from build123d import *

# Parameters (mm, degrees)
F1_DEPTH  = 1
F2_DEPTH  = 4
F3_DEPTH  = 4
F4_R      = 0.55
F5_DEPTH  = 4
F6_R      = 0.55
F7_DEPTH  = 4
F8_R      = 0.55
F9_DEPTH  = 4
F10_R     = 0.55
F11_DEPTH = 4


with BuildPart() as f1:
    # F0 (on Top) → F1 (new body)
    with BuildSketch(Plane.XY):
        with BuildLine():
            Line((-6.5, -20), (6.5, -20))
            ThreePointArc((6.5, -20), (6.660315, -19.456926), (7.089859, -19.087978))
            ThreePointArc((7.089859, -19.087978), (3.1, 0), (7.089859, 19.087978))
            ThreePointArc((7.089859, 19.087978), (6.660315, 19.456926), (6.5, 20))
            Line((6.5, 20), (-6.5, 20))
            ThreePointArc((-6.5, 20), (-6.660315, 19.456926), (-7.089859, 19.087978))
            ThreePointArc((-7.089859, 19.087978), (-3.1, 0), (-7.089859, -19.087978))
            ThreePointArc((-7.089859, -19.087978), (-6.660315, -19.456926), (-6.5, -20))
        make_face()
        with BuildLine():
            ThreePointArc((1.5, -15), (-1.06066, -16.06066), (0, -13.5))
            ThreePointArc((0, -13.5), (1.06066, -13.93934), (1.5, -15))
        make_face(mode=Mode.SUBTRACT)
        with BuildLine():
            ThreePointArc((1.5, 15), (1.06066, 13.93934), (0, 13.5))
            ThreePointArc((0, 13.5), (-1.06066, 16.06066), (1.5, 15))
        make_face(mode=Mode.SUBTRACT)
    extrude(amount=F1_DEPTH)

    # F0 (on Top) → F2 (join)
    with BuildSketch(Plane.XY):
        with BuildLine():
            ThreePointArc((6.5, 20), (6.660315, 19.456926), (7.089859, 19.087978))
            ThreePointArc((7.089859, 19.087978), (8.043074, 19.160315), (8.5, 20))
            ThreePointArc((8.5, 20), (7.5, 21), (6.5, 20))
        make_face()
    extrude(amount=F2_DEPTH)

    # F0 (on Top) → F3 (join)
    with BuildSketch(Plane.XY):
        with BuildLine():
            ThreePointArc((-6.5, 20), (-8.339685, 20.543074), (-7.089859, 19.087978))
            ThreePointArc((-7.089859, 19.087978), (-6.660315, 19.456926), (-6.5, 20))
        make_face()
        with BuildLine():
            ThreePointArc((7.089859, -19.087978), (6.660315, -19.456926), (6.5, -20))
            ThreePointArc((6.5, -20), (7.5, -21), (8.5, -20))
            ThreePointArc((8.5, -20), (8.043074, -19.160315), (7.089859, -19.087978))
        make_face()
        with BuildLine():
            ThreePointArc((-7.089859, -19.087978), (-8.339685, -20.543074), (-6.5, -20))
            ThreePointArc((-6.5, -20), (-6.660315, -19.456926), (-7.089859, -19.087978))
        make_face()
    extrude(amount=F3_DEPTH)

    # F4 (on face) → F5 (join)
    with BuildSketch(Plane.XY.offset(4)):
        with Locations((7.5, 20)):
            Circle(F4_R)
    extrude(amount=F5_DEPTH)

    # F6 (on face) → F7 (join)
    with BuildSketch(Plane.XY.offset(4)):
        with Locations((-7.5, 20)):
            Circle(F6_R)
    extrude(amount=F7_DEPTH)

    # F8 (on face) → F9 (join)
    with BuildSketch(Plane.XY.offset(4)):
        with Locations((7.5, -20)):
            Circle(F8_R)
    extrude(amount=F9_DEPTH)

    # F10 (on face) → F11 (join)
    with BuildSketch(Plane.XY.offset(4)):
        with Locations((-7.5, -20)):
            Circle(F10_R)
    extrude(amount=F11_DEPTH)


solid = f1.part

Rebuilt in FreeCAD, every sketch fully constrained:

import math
import FreeCAD as App
import Part
import Sketcher
from FreeCAD import Vector

doc = App.newDocument("Part")
body = doc.addObject("PartDesign::Body", "Body")

sketch1 = body.newObject("Sketcher::SketchObject", "Sketch")
sketch1.AttachmentSupport = (doc.getObject("XY_Plane"), [""])
sketch1.MapMode = "FlatFace"
sketch1.addGeometry([
    Part.LineSegment(Vector(-6.5, -20, 0), Vector(6.5, -20, 0)),
    Part.ArcOfCircle(Part.Circle(Vector(7.499999, -19.999999, 0), Vector(0, 0, 1), 0.999999), math.radians(114.213653), math.radians(180.000032)),
    Part.ArcOfCircle(Part.Circle(Vector(50.754551, 0, 0), Vector(0, 0, 1), 47.654551), math.radians(156.387503), math.radians(203.612497)),
    Part.ArcOfCircle(Part.Circle(Vector(7.499999, 19.999999, 0), Vector(0, 0, 1), 0.999999), math.radians(179.999968), math.radians(245.786347)),
    Part.LineSegment(Vector(6.5, 20, 0), Vector(-6.5, 20, 0)),
    Part.ArcOfCircle(Part.Circle(Vector(-7.499999, 19.999999, 0), Vector(0, 0, 1), 0.999999), math.radians(-65.786347), math.radians(0.000032)),
    Part.ArcOfCircle(Part.Circle(Vector(-50.754551, 0, 0), Vector(0, 0, 1), 47.654551), math.radians(-23.612497), math.radians(23.612497)),
    Part.ArcOfCircle(Part.Circle(Vector(-7.499999, -19.999999, 0), Vector(0, 0, 1), 0.999999), math.radians(-0.000032), math.radians(65.786347)),
    Part.ArcOfCircle(Part.Circle(Vector(-0.000001, -15.000001, 0), Vector(0, 0, 1), 1.500001), math.radians(0.000022), math.radians(89.999978)),
    Part.ArcOfCircle(Part.Circle(Vector(0, -15, 0), Vector(0, 0, 1), 1.5), math.radians(90.000004), math.radians(359.999996)),
    Part.ArcOfCircle(Part.Circle(Vector(0, 15, 0), Vector(0, 0, 1), 1.5), math.radians(0.000004), math.radians(269.999996)),
    Part.ArcOfCircle(Part.Circle(Vector(-0.000001, 15.000001, 0), Vector(0, 0, 1), 1.500001), math.radians(-89.999978), math.radians(-0.000022)),
], False)
sketch1.addConstraint([
    Sketcher.Constraint("Coincident", 0, 2, 1, 2),
    Sketcher.Constraint("Coincident", 1, 1, 2, 2),
    Sketcher.Constraint("Coincident", 2, 1, 3, 2),
    Sketcher.Constraint("Coincident", 3, 1, 4, 1),
    Sketcher.Constraint("Coincident", 4, 2, 5, 2),
    Sketcher.Constraint("Coincident", 5, 1, 6, 2),
    Sketcher.Constraint("Coincident", 6, 1, 7, 2),
    Sketcher.Constraint("Coincident", 7, 1, 0, 1),
    Sketcher.Constraint("Tangent", 8, 1, 9, 2),
    Sketcher.Constraint("Coincident", 9, 1, 8, 2),
    Sketcher.Constraint("Tangent", 10, 1, 11, 2),
    Sketcher.Constraint("Coincident", 11, 1, 10, 2),
    Sketcher.Constraint("Horizontal", 0),
    Sketcher.Constraint("Horizontal", 4),
    Sketcher.Constraint("Equal", 1, 3),
    Sketcher.Constraint("Equal", 3, 5),
    Sketcher.Constraint("Equal", 2, 6),
    Sketcher.Constraint("Equal", 5, 7),
    Sketcher.Constraint("Equal", 9, 10),
    Sketcher.Constraint("Symmetric", 1, 3, 5, 3, -1, 1),
    Sketcher.Constraint("Symmetric", 2, 3, 6, 3, -1, 1),
    Sketcher.Constraint("Symmetric", 3, 3, 7, 3, -1, 1),
    Sketcher.Constraint("Symmetric", 8, 3, 10, 3, -1, 1),
    Sketcher.Constraint("Symmetric", 3, 3, 5, 3, -2),
    Sketcher.Constraint("Symmetric", 8, 1, 10, 1, -1),
    Sketcher.Constraint("PointOnObject", 2, 3, -1),
    Sketcher.Constraint("PointOnObject", 9, 1, -2),
    Sketcher.Constraint("PointOnObject", 11, 1, -2),
    Sketcher.Constraint("Horizontal", 7, 3, 0, 2),
    Sketcher.Constraint("Horizontal", 5, 3, 3, 1),
    Sketcher.Constraint("Horizontal", 9, 3, 8, 1),
    Sketcher.Constraint("Radius", 1, 0.999999),
    Sketcher.Constraint("Radius", 8, 1.500001),
    Sketcher.Constraint("DistanceX", 0, 1, 0, 2, 13.0),
    Sketcher.Constraint("DistanceY", 1, 3, -1, 1, 19.999999),
    Sketcher.Constraint("DistanceY", 8, 3, -1, 1, 15.000001),
    Sketcher.Constraint("Radius", 2, 47.654551),
    Sketcher.Constraint("DistanceX", -1, 1, 2, 3, 50.754551),
])
pad1 = body.newObject("PartDesign::Pad", "Pad")
pad1.Profile = sketch1
pad1.Length = 1

sketch2 = body.newObject("Sketcher::SketchObject", "Sketch001")
sketch2.AttachmentSupport = (doc.getObject("XY_Plane"), [""])
sketch2.MapMode = "FlatFace"
sketch2.addGeometry([
    Part.ArcOfCircle(Part.Circle(Vector(7.499999, 19.999999, 0), Vector(0, 0, 1), 0.999999), math.radians(179.999968), math.radians(245.786347)),
    Part.ArcOfCircle(Part.Circle(Vector(7.5, 20, 0), Vector(0, 0, 1), 1), math.radians(-114.213718), math.radians(0.000018)),
    Part.ArcOfCircle(Part.Circle(Vector(7.5, 20, 0), Vector(0, 0, 1), 1), math.radians(0), math.radians(180)),
], False)
sketch2.addConstraint([
    Sketcher.Constraint("Tangent", 0, 2, 1, 1),
    Sketcher.Constraint("Tangent", 1, 2, 2, 1),
    Sketcher.Constraint("Tangent", 2, 2, 0, 1),
    Sketcher.Constraint("Horizontal", 2, 3, 1, 2),
    Sketcher.Constraint("Horizontal", 1, 2, 2, 2),
    Sketcher.Constraint("Radius", 0, 0.999999),
    Sketcher.Constraint("DistanceY", -1, 1, 0, 3, 19.999999),
    Sketcher.Constraint("DistanceX", -1, 1, 0, 3, 7.499999),
    Sketcher.Constraint("DistanceX", -1, 1, 0, 2, 7.089859),
])
pad2 = body.newObject("PartDesign::Pad", "Pad001")
pad2.Profile = sketch2
pad2.Length = 4

sketch3 = body.newObject("Sketcher::SketchObject", "Sketch002")
sketch3.AttachmentSupport = (doc.getObject("XY_Plane"), [""])
sketch3.MapMode = "FlatFace"
sketch3.addGeometry([
    Part.ArcOfCircle(Part.Circle(Vector(-7.5, 20, 0), Vector(0, 0, 1), 1), math.radians(-0.000008), math.radians(294.213694)),
    Part.ArcOfCircle(Part.Circle(Vector(-7.499999, 19.999999, 0), Vector(0, 0, 1), 0.999999), math.radians(-65.786347), math.radians(0.000032)),
    Part.ArcOfCircle(Part.Circle(Vector(7.499999, -19.999999, 0), Vector(0, 0, 1), 0.999999), math.radians(114.213653), math.radians(180.000032)),
    Part.ArcOfCircle(Part.Circle(Vector(7.5, -20, 0), Vector(0, 0, 1), 1), math.radians(180), math.radians(360)),
    Part.ArcOfCircle(Part.Circle(Vector(7.5, -20, 0), Vector(0, 0, 1), 1), math.radians(-0.000018), math.radians(114.213718)),
    Part.ArcOfCircle(Part.Circle(Vector(-7.5, -20, 0), Vector(0, 0, 1), 1), math.radians(65.786306), math.radians(360.000008)),
    Part.ArcOfCircle(Part.Circle(Vector(-7.499999, -19.999999, 0), Vector(0, 0, 1), 0.999999), math.radians(-0.000032), math.radians(65.786347)),
], False)
sketch3.addConstraint([
    Sketcher.Constraint("Tangent", 0, 1, 1, 2),
    Sketcher.Constraint("Coincident", 1, 1, 0, 2),
    Sketcher.Constraint("Tangent", 2, 2, 3, 1),
    Sketcher.Constraint("Tangent", 3, 2, 4, 1),
    Sketcher.Constraint("Tangent", 4, 2, 2, 1),
    Sketcher.Constraint("Tangent", 5, 1, 6, 2),
    Sketcher.Constraint("Coincident", 6, 1, 5, 2),
    Sketcher.Constraint("Equal", 1, 2),
    Sketcher.Constraint("Equal", 4, 5),
    Sketcher.Constraint("Symmetric", 0, 3, 2, 3, -1, 1),
    Sketcher.Constraint("Symmetric", 2, 3, 5, 3, -2),
    Sketcher.Constraint("Horizontal", 1, 3, 0, 1),
    Sketcher.Constraint("Horizontal", 6, 3, 2, 2),
    Sketcher.Constraint("Horizontal", 2, 2, 3, 2),
    Sketcher.Constraint("Horizontal", 4, 2, 5, 1),
    Sketcher.Constraint("Horizontal", 3, 2, 6, 1),
    Sketcher.Constraint("Vertical", 1, 1, 5, 1),
    Sketcher.Constraint("Radius", 0, 1.0),
    Sketcher.Constraint("DistanceY", -1, 1, 0, 3, 20.0),
    Sketcher.Constraint("DistanceX", 0, 3, 2, 3, 14.999999),
    Sketcher.Constraint("DistanceX", 1, 1, -1, 1, 7.089859),
])
pad3 = body.newObject("PartDesign::Pad", "Pad002")
pad3.Profile = sketch3
pad3.Length = 4

sketch4 = body.newObject("Sketcher::SketchObject", "Sketch003")
sketch4.AttachmentSupport = (doc.getObject("XY_Plane"), [""])
sketch4.MapMode = "FlatFace"
sketch4.AttachmentOffset = App.Placement(Vector(0, 0, 4), App.Rotation())
sketch4.addGeometry(Part.Circle(Vector(7.5, 20, 0), Vector(0, 0, 1), 0.55), False)
sketch4.addConstraint([
    Sketcher.Constraint("Diameter", 0, 1.1),
    Sketcher.Constraint("DistanceY", -1, 1, 0, 3, 20.0),
    Sketcher.Constraint("DistanceX", -1, 1, 0, 3, 7.5),
])
pad4 = body.newObject("PartDesign::Pad", "Pad003")
pad4.Profile = sketch4
pad4.Length = 4

sketch5 = body.newObject("Sketcher::SketchObject", "Sketch004")
sketch5.AttachmentSupport = (doc.getObject("XY_Plane"), [""])
sketch5.MapMode = "FlatFace"
sketch5.AttachmentOffset = App.Placement(Vector(0, 0, 4), App.Rotation())
sketch5.addGeometry(Part.Circle(Vector(-7.5, 20, 0), Vector(0, 0, 1), 0.55), False)
sketch5.addConstraint([
    Sketcher.Constraint("Diameter", 0, 1.1),
    Sketcher.Constraint("DistanceY", -1, 1, 0, 3, 20.0),
    Sketcher.Constraint("DistanceX", 0, 3, -1, 1, 7.5),
])
pad5 = body.newObject("PartDesign::Pad", "Pad004")
pad5.Profile = sketch5
pad5.Length = 4

sketch6 = body.newObject("Sketcher::SketchObject", "Sketch005")
sketch6.AttachmentSupport = (doc.getObject("XY_Plane"), [""])
sketch6.MapMode = "FlatFace"
sketch6.AttachmentOffset = App.Placement(Vector(0, 0, 4), App.Rotation())
sketch6.addGeometry(Part.Circle(Vector(7.5, -20, 0), Vector(0, 0, 1), 0.55), False)
sketch6.addConstraint([
    Sketcher.Constraint("Diameter", 0, 1.1),
    Sketcher.Constraint("DistanceY", 0, 3, -1, 1, 20.0),
    Sketcher.Constraint("DistanceX", -1, 1, 0, 3, 7.5),
])
pad6 = body.newObject("PartDesign::Pad", "Pad005")
pad6.Profile = sketch6
pad6.Length = 4

sketch7 = body.newObject("Sketcher::SketchObject", "Sketch006")
sketch7.AttachmentSupport = (doc.getObject("XY_Plane"), [""])
sketch7.MapMode = "FlatFace"
sketch7.AttachmentOffset = App.Placement(Vector(0, 0, 4), App.Rotation())
sketch7.addGeometry(Part.Circle(Vector(-7.5, -20, 0), Vector(0, 0, 1), 0.55), False)
sketch7.addConstraint([
    Sketcher.Constraint("Diameter", 0, 1.1),
    Sketcher.Constraint("DistanceY", 0, 3, -1, 1, 20.0),
    Sketcher.Constraint("DistanceX", 0, 3, -1, 1, 7.5),
])
pad7 = body.newObject("PartDesign::Pad", "Pad006")
pad7.Profile = sketch7
pad7.Length = 4

doc.recompute()
